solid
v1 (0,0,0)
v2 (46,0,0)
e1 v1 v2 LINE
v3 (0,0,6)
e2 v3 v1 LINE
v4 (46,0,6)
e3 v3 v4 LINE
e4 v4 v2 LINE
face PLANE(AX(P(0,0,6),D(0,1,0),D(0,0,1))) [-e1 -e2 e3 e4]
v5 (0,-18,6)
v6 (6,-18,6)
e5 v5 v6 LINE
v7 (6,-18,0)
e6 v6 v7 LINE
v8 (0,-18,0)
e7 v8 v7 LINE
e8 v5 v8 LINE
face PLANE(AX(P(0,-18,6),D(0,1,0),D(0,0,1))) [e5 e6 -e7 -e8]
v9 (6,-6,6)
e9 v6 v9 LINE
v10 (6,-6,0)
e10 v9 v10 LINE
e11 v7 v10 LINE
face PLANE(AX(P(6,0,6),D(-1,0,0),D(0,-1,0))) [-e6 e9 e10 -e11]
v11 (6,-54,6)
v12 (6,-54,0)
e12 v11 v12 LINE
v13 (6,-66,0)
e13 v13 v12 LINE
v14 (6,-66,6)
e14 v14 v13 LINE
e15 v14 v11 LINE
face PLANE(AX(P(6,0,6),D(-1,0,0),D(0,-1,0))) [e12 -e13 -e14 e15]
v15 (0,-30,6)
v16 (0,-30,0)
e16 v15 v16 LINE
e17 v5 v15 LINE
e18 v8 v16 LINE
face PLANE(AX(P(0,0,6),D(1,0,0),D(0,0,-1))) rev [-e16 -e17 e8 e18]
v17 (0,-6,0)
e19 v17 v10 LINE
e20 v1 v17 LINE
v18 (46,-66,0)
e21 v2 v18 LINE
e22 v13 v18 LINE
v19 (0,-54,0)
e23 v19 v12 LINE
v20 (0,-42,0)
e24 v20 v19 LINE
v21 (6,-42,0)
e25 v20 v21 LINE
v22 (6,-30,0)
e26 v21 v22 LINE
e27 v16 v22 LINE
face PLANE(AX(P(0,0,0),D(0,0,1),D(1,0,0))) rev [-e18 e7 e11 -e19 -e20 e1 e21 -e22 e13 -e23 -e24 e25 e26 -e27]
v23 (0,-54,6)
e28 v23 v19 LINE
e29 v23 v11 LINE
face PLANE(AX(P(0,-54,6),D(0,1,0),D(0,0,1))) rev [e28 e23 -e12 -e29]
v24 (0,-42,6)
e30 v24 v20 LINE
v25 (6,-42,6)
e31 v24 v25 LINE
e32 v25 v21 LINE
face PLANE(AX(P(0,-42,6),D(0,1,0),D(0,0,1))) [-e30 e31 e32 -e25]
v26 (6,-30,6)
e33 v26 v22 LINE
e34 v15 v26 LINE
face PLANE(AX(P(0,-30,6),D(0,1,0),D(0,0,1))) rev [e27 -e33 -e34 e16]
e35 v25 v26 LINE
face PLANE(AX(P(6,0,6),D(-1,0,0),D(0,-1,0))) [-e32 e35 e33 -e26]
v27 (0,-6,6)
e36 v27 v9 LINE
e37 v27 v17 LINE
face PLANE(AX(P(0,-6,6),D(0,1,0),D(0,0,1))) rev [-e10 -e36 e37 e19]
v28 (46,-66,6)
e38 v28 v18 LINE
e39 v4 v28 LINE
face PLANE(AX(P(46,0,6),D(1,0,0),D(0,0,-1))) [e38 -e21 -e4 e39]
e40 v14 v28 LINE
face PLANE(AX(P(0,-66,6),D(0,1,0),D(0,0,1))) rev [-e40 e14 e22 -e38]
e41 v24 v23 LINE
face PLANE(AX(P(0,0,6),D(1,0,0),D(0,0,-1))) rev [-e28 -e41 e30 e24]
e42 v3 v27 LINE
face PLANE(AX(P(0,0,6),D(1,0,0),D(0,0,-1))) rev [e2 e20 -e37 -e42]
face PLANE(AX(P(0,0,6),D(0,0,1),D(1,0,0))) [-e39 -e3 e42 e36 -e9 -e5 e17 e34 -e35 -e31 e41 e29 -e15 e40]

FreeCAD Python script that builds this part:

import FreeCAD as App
import Part
import Sketcher
Q = App.Units.Quantity


def add_polygon(sketch, points):
    """Adds a closed chain of lines whose ends are joined by coincident constraints."""
    first, n = sketch.GeometryCount, len(points)
    for a, b in zip(points, points[1:] + points[:1]):
        sketch.addGeometry(Part.LineSegment(App.Vector(*a, 0), App.Vector(*b, 0)), False)
    for i in range(n):
        sketch.addConstraint(Sketcher.Constraint("Coincident", first + i, 2, first + (i + 1) % n, 1))

doc = App.newDocument("Part")
body = doc.addObject("PartDesign::Body", "Body")

# Sketch on XY plane
sketch1 = body.newObject("Sketcher::SketchObject", "Sketch")
sketch1.AttachmentSupport = (doc.getObject("XY_Plane"), [""])
sketch1.MapMode = "FlatFace"
add_polygon(sketch1, [(6, -42), (0, -42), (0, -54), (6, -54), (6, -66), (46, -66), (46, 0), (0, 0), (0, -6), (6, -6), (6, -18), (0, -18), (0, -30), (6, -30)])  # lines 0-13
sketch1.addConstraint([
    Sketcher.Constraint("Horizontal", 0),
    Sketcher.Constraint("Vertical", 1),
    Sketcher.Constraint("Horizontal", 2),
    Sketcher.Constraint("Vertical", 3),
    Sketcher.Constraint("Horizontal", 4),
    Sketcher.Constraint("Vertical", 5),
    Sketcher.Constraint("Horizontal", 6),
    Sketcher.Constraint("Vertical", 7),
    Sketcher.Constraint("Horizontal", 8),
    Sketcher.Constraint("Vertical", 9),
    Sketcher.Constraint("Horizontal", 10),
    Sketcher.Constraint("Vertical", 11),
    Sketcher.Constraint("Horizontal", 12),
    Sketcher.Constraint("Vertical", 13),
    Sketcher.Constraint("Coincident", 6, 2, -1, 1),
    Sketcher.Constraint("PointOnObject", 0, 2, -2),
    Sketcher.Constraint("PointOnObject", 10, 2, -2),
    Sketcher.Constraint("Vertical", 3, 2, 8, 2),
    Sketcher.Constraint("Vertical", 9, 2, 12, 2),
    Sketcher.Constraint("Equal", 1, 3),
    Sketcher.Constraint("Equal", 12, 7),
    Sketcher.Constraint("Equal", 3, 9),
    Sketcher.Constraint("Equal", 9, 11),
    Sketcher.Constraint("Equal", 11, 13),
    Sketcher.Constraint("DistanceX", 0, 2, 0, 1, Q("6 mm")),
    Sketcher.Constraint("DistanceX", 4, 1, 4, 2, Q("40 mm")),
    Sketcher.Constraint("DistanceY", 1, 2, 1, 1, Q("12 mm")),
])
pad1 = body.newObject("PartDesign::Pad", "Pad")
pad1.Profile = sketch1
pad1.Length = 6

doc.recompute()
